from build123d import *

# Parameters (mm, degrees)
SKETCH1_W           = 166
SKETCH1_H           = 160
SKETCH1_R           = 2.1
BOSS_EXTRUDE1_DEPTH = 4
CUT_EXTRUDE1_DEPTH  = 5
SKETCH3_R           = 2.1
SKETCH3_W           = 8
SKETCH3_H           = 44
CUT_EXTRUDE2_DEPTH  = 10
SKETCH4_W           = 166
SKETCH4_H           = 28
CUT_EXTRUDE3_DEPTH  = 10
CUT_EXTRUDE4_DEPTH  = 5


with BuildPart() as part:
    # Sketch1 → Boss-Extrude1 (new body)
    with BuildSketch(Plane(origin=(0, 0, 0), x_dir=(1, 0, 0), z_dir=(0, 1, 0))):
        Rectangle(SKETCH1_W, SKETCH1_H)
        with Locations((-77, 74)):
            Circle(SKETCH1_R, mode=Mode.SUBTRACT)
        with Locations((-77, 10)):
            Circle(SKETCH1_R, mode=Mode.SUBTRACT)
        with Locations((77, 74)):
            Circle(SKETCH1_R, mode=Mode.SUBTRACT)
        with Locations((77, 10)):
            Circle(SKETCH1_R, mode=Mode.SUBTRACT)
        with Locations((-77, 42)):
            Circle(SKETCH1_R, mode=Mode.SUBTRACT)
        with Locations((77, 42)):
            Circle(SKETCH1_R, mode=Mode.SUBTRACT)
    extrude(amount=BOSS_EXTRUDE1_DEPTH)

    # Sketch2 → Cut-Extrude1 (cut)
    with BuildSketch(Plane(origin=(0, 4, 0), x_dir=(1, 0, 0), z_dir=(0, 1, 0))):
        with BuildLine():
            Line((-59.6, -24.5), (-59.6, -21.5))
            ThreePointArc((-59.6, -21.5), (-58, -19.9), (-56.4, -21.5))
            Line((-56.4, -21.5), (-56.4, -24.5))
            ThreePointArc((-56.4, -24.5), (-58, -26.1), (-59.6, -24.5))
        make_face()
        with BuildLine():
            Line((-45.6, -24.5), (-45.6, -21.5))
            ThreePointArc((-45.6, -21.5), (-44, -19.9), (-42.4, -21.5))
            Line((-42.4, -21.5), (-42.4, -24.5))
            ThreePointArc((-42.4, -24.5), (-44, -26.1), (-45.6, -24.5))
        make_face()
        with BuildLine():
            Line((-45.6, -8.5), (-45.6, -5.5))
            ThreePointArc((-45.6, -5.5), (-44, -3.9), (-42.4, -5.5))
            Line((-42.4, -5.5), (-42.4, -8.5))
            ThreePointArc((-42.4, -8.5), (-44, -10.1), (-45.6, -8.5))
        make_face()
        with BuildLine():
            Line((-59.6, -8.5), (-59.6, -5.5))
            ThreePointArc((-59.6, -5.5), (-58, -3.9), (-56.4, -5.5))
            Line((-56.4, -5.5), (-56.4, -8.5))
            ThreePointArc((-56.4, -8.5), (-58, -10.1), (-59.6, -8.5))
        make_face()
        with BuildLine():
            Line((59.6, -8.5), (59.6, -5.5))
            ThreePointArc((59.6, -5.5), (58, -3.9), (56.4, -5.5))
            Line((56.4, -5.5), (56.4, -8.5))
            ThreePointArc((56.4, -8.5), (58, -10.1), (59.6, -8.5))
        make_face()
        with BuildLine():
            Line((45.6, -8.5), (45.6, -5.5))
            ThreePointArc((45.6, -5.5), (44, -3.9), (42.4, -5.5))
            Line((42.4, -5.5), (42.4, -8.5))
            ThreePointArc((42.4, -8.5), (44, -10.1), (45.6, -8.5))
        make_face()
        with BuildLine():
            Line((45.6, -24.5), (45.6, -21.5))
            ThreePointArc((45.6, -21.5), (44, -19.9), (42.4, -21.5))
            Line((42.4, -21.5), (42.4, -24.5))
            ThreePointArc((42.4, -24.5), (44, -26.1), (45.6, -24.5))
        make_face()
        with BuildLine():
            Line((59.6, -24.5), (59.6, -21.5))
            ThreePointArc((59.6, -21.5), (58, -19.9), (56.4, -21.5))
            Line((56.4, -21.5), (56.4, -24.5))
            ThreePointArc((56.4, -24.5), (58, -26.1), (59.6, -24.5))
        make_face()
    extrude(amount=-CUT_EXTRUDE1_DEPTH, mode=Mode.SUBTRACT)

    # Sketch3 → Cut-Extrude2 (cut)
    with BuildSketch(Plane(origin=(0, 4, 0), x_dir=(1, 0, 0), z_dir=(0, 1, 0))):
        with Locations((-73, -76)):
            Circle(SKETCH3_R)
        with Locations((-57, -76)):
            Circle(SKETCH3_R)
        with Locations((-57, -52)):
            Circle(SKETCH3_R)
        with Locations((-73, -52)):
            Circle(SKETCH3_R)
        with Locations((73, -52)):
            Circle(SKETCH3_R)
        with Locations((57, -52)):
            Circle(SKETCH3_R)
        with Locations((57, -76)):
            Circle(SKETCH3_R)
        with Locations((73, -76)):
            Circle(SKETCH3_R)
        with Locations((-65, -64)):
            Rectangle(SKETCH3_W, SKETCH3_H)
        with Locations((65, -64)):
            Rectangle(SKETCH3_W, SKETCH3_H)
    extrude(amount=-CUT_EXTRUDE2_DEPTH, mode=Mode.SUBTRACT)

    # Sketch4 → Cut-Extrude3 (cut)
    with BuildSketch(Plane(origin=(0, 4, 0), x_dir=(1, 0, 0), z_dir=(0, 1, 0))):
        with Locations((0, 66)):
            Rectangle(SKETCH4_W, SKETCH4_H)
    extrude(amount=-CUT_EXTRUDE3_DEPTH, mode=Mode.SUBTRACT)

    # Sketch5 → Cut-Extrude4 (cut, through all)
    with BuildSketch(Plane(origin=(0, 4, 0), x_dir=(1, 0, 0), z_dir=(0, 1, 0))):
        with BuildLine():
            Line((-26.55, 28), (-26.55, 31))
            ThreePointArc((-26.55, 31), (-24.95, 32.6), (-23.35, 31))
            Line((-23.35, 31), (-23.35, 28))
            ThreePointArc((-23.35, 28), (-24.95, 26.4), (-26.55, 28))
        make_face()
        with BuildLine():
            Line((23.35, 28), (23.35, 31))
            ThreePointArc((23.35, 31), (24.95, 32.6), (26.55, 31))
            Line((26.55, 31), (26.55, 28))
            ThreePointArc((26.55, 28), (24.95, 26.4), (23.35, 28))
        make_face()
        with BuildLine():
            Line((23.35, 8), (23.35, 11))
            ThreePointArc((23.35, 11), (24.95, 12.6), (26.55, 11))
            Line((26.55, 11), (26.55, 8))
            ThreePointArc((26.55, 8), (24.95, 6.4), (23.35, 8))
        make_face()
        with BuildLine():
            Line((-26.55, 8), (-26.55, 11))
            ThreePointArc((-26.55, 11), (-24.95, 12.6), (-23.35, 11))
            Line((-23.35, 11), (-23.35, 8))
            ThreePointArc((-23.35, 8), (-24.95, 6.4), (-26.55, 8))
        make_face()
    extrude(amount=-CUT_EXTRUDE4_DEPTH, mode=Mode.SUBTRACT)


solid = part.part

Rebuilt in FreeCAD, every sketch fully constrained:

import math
import FreeCAD as App
import Part
import Sketcher

V = App.Vector

doc = App.newDocument("Part")
body = doc.addObject("PartDesign::Body", "Body")

# Sketch on XZ plane
sketch1 = body.newObject("Sketcher::SketchObject", "Sketch")
sketch1.AttachmentSupport = (doc.getObject("XZ_Plane"), [""])
sketch1.MapMode = "FlatFace"
sketch1.addGeometry([
    Part.LineSegment(V(-83, -80, 0), V(-83, 80, 0)),  # 0
    Part.LineSegment(V(-83, 80, 0), V(83, 80, 0)),  # 1
    Part.LineSegment(V(83, 80, 0), V(83, -80, 0)),  # 2
    Part.LineSegment(V(83, -80, 0), V(-83, -80, 0)),  # 3
    Part.Circle(V(-77, -10, 0), V(0, 0, 1), 2.1),  # 4
    Part.Circle(V(77, -10, 0), V(0, 0, 1), 2.1),  # 5
    Part.Circle(V(-77, -42, 0), V(0, 0, 1), 2.1),  # 6
    Part.Circle(V(-77, -74, 0), V(0, 0, 1), 2.1),  # 7
    Part.Circle(V(77, -42, 0), V(0, 0, 1), 2.1),  # 8
    Part.Circle(V(77, -74, 0), V(0, 0, 1), 2.1),  # 9
], False)
sketch1.addConstraint([
    Sketcher.Constraint("Coincident", 0, 2, 1, 1),
    Sketcher.Constraint("Coincident", 1, 2, 2, 1),
    Sketcher.Constraint("Coincident", 2, 2, 3, 1),
    Sketcher.Constraint("Coincident", 3, 2, 0, 1),
    Sketcher.Constraint("Vertical", 0),
    Sketcher.Constraint("Horizontal", 1),
    Sketcher.Constraint("Vertical", 2),
    Sketcher.Constraint("Horizontal", 3),
    Sketcher.Constraint("Equal", 4, 5),
    Sketcher.Constraint("Equal", 5, 6),
    Sketcher.Constraint("Equal", 6, 7),
    Sketcher.Constraint("Equal", 7, 8),
    Sketcher.Constraint("Equal", 8, 9),
    Sketcher.Constraint("Symmetric", 0, 2, 2, 2, -1, 1),
    Sketcher.Constraint("Symmetric", 4, 3, 5, 3, -2),
    Sketcher.Constraint("Symmetric", 6, 3, 8, 3, -2),
    Sketcher.Constraint("Symmetric", 7, 3, 9, 3, -2),
    Sketcher.Constraint("Vertical", 4, 3, 6, 3),
    Sketcher.Constraint("Vertical", 6, 3, 7, 3),
    Sketcher.Constraint("Diameter", 4, 4.2),
    Sketcher.Constraint("DistanceX", 1, 1, 1, 2, 166.0),
    Sketcher.Constraint("DistanceY", 0, 1, 0, 2, 160.0),
    Sketcher.Constraint("DistanceX", 4, 3, -1, 1, 77.0),
    Sketcher.Constraint("DistanceY", 4, 3, -1, 1, 10.0),
    Sketcher.Constraint("DistanceY", 6, 3, -1, 1, 42.0),
    Sketcher.Constraint("DistanceY", 7, 3, -1, 1, 74.0),
])
pad1 = body.newObject("PartDesign::Pad", "Pad")
pad1.Profile = sketch1
pad1.Length = 4
pad1.Reversed = True

# Sketch on XZ plane
sketch2 = body.newObject("Sketcher::SketchObject", "Sketch001")
sketch2.AttachmentSupport = (doc.getObject("XZ_Plane"), [""])
sketch2.MapMode = "FlatFace"
sketch2.AttachmentOffset = App.Placement(V(0, 0, -4), App.Rotation())
sketch2.addGeometry([
    Part.LineSegment(V(-59.6, 21.5, 0), V(-59.6, 24.5, 0)),  # 0
    Part.ArcOfCircle(Part.Circle(V(-58, 24.5, 0), V(0, 0, 1), 1.6), math.radians(0), math.radians(180)),  # 1
    Part.LineSegment(V(-56.4, 24.5, 0), V(-56.4, 21.5, 0)),  # 2
    Part.ArcOfCircle(Part.Circle(V(-58, 21.5, 0), V(0, 0, 1), 1.6), math.radians(180), math.radians(360)),  # 3
    Part.LineSegment(V(-45.6, 21.5, 0), V(-45.6, 24.5, 0)),  # 4
    Part.ArcOfCircle(Part.Circle(V(-44, 24.5, 0), V(0, 0, 1), 1.6), math.radians(0), math.radians(180)),  # 5
    Part.LineSegment(V(-42.4, 24.5, 0), V(-42.4, 21.5, 0)),  # 6
    Part.ArcOfCircle(Part.Circle(V(-44, 21.5, 0), V(0, 0, 1), 1.6), math.radians(180), math.radians(360)),  # 7
    Part.LineSegment(V(-45.6, 5.5, 0), V(-45.6, 8.5, 0)),  # 8
    Part.ArcOfCircle(Part.Circle(V(-44, 8.5, 0), V(0, 0, 1), 1.6), math.radians(0), math.radians(180)),  # 9
    Part.LineSegment(V(-42.4, 8.5, 0), V(-42.4, 5.5, 0)),  # 10
    Part.ArcOfCircle(Part.Circle(V(-44, 5.5, 0), V(0, 0, 1), 1.6), math.radians(180), math.radians(360)),  # 11
    Part.LineSegment(V(-59.6, 5.5, 0), V(-59.6, 8.5, 0)),  # 12
    Part.ArcOfCircle(Part.Circle(V(-58, 8.5, 0), V(0, 0, 1), 1.6), math.radians(0), math.radians(180)),  # 13
    Part.LineSegment(V(-56.4, 8.5, 0), V(-56.4, 5.5, 0)),  # 14
    Part.ArcOfCircle(Part.Circle(V(-58, 5.5, 0), V(0, 0, 1), 1.6), math.radians(180), math.radians(360)),  # 15
    Part.LineSegment(V(59.6, 8.5, 0), V(59.6, 5.5, 0)),  # 16
    Part.ArcOfCircle(Part.Circle(V(58, 5.5, 0), V(0, 0, 1), 1.6), math.radians(180), math.radians(360)),  # 17
    Part.LineSegment(V(56.4, 5.5, 0), V(56.4, 8.5, 0)),  # 18
    Part.ArcOfCircle(Part.Circle(V(58, 8.5, 0), V(0, 0, 1), 1.6), math.radians(0), math.radians(180)),  # 19
    Part.LineSegment(V(45.6, 8.5, 0), V(45.6, 5.5, 0)),  # 20
    Part.ArcOfCircle(Part.Circle(V(44, 5.5, 0), V(0, 0, 1), 1.6), math.radians(180), math.radians(360)),  # 21
    Part.LineSegment(V(42.4, 5.5, 0), V(42.4, 8.5, 0)),  # 22
    Part.ArcOfCircle(Part.Circle(V(44, 8.5, 0), V(0, 0, 1), 1.6), math.radians(0), math.radians(180)),  # 23
    Part.LineSegment(V(45.6, 24.5, 0), V(45.6, 21.5, 0)),  # 24
    Part.ArcOfCircle(Part.Circle(V(44, 21.5, 0), V(0, 0, 1), 1.6), math.radians(180), math.radians(360)),  # 25
    Part.LineSegment(V(42.4, 21.5, 0), V(42.4, 24.5, 0)),  # 26
    Part.ArcOfCircle(Part.Circle(V(44, 24.5, 0), V(0, 0, 1), 1.6), math.radians(0), math.radians(180)),  # 27
    Part.LineSegment(V(59.6, 24.5, 0), V(59.6, 21.5, 0)),  # 28
    Part.ArcOfCircle(Part.Circle(V(58, 21.5, 0), V(0, 0, 1), 1.6), math.radians(180), math.radians(360)),  # 29
    Part.LineSegment(V(56.4, 21.5, 0), V(56.4, 24.5, 0)),  # 30
    Part.ArcOfCircle(Part.Circle(V(58, 24.5, 0), V(0, 0, 1), 1.6), math.radians(0), math.radians(180)),  # 31
], False)
sketch2.addConstraint([
    Sketcher.Constraint("Tangent", 0, 2, 1, 2),
    Sketcher.Constraint("Tangent", 1, 1, 2, 1),
    Sketcher.Constraint("Tangent", 2, 2, 3, 2),
    Sketcher.Constraint("Tangent", 3, 1, 0, 1),
    Sketcher.Constraint("Tangent", 4, 2, 5, 2),
    Sketcher.Constraint("Tangent", 5, 1, 6, 1),
    Sketcher.Constraint("Tangent", 6, 2, 7, 2),
    Sketcher.Constraint("Tangent", 7, 1, 4, 1),
    Sketcher.Constraint("Tangent", 8, 2, 9, 2),
    Sketcher.Constraint("Tangent", 9, 1, 10, 1),
    Sketcher.Constraint("Tangent", 10, 2, 11, 2),
    Sketcher.Constraint("Tangent", 11, 1, 8, 1),
    Sketcher.Constraint("Tangent", 12, 2, 13, 2),
    Sketcher.Constraint("Tangent", 13, 1, 14, 1),
    Sketcher.Constraint("Tangent", 14, 2, 15, 2),
    Sketcher.Constraint("Tangent", 15, 1, 12, 1),
    Sketcher.Constraint("Tangent", 16, 2, 17, 2),
    Sketcher.Constraint("Tangent", 17, 1, 18, 1),
    Sketcher.Constraint("Tangent", 18, 2, 19, 2),
    Sketcher.Constraint("Tangent", 19, 1, 16, 1),
    Sketcher.Constraint("Tangent", 20, 2, 21, 2),
    Sketcher.Constraint("Tangent", 21, 1, 22, 1),
    Sketcher.Constraint("Tangent", 22, 2, 23, 2),
    Sketcher.Constraint("Tangent", 23, 1, 20, 1),
    Sketcher.Constraint("Tangent", 24, 2, 25, 2),
    Sketcher.Constraint("Tangent", 25, 1, 26, 1),
    Sketcher.Constraint("Tangent", 26, 2, 27, 2),
    Sketcher.Constraint("Tangent", 27, 1, 24, 1),
    Sketcher.Constraint("Tangent", 28, 2, 29, 2),
    Sketcher.Constraint("Tangent", 29, 1, 30, 1),
    Sketcher.Constraint("Tangent", 30, 2, 31, 2),
    Sketcher.Constraint("Tangent", 31, 1, 28, 1),
    Sketcher.Constraint("Vertical", 0),
    Sketcher.Constraint("Vertical", 2),
    Sketcher.Constraint("Vertical", 4),
    Sketcher.Constraint("Vertical", 6),
    Sketcher.Constraint("Vertical", 8),
    Sketcher.Constraint("Vertical", 10),
    Sketcher.Constraint("Vertical", 12),
    Sketcher.Constraint("Vertical", 14),
    Sketcher.Constraint("Vertical", 16),
    Sketcher.Constraint("Vertical", 18),
    Sketcher.Constraint("Vertical", 20),
    Sketcher.Constraint("Vertical", 22),
    Sketcher.Constraint("Vertical", 24),
    Sketcher.Constraint("Vertical", 26),
    Sketcher.Constraint("Vertical", 28),
    Sketcher.Constraint("Vertical", 30),
    Sketcher.Constraint("Equal", 3, 5),
    Sketcher.Constraint("Equal", 7, 9),
    Sketcher.Constraint("Equal", 11, 13),
    Sketcher.Constraint("Equal", 15, 17),
    Sketcher.Constraint("Equal", 19, 21),
    Sketcher.Constraint("Equal", 23, 25),
    Sketcher.Constraint("Equal", 27, 29),
    Sketcher.Constraint("Symmetric", 15, 3, 17, 3, -2),
    Sketcher.Constraint("Symmetric", 11, 3, 21, 3, -2),
    Sketcher.Constraint("Symmetric", 7, 3, 25, 3, -2),
    Sketcher.Constraint("Symmetric", 3, 3, 29, 3, -2),
    Sketcher.Constraint("Horizontal", 1, 3, 5, 3),
    Sketcher.Constraint("Horizontal", 3, 3, 7, 3),
    Sketcher.Constraint("Horizontal", 9, 3, 13, 3),
    Sketcher.Constraint("Horizontal", 11, 3, 15, 3),
    Sketcher.Constraint("Horizontal", 13, 3, 19, 3),
    Sketcher.Constraint("Horizontal", 19, 3, 23, 3),
    Sketcher.Constraint("Horizontal", 5, 3, 27, 3),
    Sketcher.Constraint("Horizontal", 27, 3, 31, 3),
    Sketcher.Constraint("Vertical", 7, 3, 9, 3),
    Sketcher.Constraint("Vertical", 3, 3, 13, 3),
    Sketcher.Constraint("Equal", 6, 8),
    Sketcher.Constraint("Radius", 1, 1.6),
    Sketcher.Constraint("DistanceY", 0, 1, 0, 2, 3.0),
    Sketcher.Constraint("DistanceX", 1, 3, -1, 1, 58.0),
    Sketcher.Constraint("DistanceX", 5, 3, -1, 1, 44.0),
    Sketcher.Constraint("DistanceY", 9, 3, 7, 3, 13.0),
    Sketcher.Constraint("DistanceY", -1, 1, 1, 3, 24.5),
])
pocket1 = body.newObject("PartDesign::Pocket", "Pocket")
pocket1.Profile = sketch2
pocket1.Length = 5
pocket1.Reversed = True

# Sketch on XZ plane
sketch3 = body.newObject("Sketcher::SketchObject", "Sketch002")
sketch3.AttachmentSupport = (doc.getObject("XZ_Plane"), [""])
sketch3.MapMode = "FlatFace"
sketch3.AttachmentOffset = App.Placement(V(0, 0, -4), App.Rotation())
sketch3.addGeometry([
    Part.Circle(V(-73, 76, 0), V(0, 0, 1), 2.1),  # 0
    Part.Circle(V(-57, 76, 0), V(0, 0, 1), 2.1),  # 1
    Part.Circle(V(-57, 52, 0), V(0, 0, 1), 2.1),  # 2
    Part.Circle(V(-73, 52, 0), V(0, 0, 1), 2.1),  # 3
    Part.Circle(V(73, 52, 0), V(0, 0, 1), 2.1),  # 4
    Part.Circle(V(57, 52, 0), V(0, 0, 1), 2.1),  # 5
    Part.Circle(V(57, 76, 0), V(0, 0, 1), 2.1),  # 6
    Part.Circle(V(73, 76, 0), V(0, 0, 1), 2.1),  # 7
    Part.LineSegment(V(-69, 42, 0), V(-69, 86, 0)),  # 8
    Part.LineSegment(V(-69, 86, 0), V(-61, 86, 0)),  # 9
    Part.LineSegment(V(-61, 86, 0), V(-61, 42, 0)),  # 10
    Part.LineSegment(V(-61, 42, 0), V(-69, 42, 0)),  # 11
    Part.LineSegment(V(61, 42, 0), V(61, 86, 0)),  # 12
    Part.LineSegment(V(61, 86, 0), V(69, 86, 0)),  # 13
    Part.LineSegment(V(69, 86, 0), V(69, 42, 0)),  # 14
    Part.LineSegment(V(69, 42, 0), V(61, 42, 0)),  # 15
], False)
sketch3.addConstraint([
    Sketcher.Constraint("Coincident", 8, 2, 9, 1),
    Sketcher.Constraint("Coincident", 9, 2, 10, 1),
    Sketcher.Constraint("Coincident", 10, 2, 11, 1),
    Sketcher.Constraint("Coincident", 11, 2, 8, 1),
    Sketcher.Constraint("Coincident", 12, 2, 13, 1),
    Sketcher.Constraint("Coincident", 13, 2, 14, 1),
    Sketcher.Constraint("Coincident", 14, 2, 15, 1),
    Sketcher.Constraint("Coincident", 15, 2, 12, 1),
    Sketcher.Constraint("Vertical", 8),
    Sketcher.Constraint("Horizontal", 9),
    Sketcher.Constraint("Vertical", 10),
    Sketcher.Constraint("Horizontal", 11),
    Sketcher.Constraint("Vertical", 12),
    Sketcher.Constraint("Horizontal", 13),
    Sketcher.Constraint("Vertical", 14),
    Sketcher.Constraint("Horizontal", 15),
    Sketcher.Constraint("Equal", 0, 1),
    Sketcher.Constraint("Equal", 1, 2),
    Sketcher.Constraint("Equal", 2, 3),
    Sketcher.Constraint("Equal", 3, 4),
    Sketcher.Constraint("Equal", 4, 5),
    Sketcher.Constraint("Equal", 5, 6),
    Sketcher.Constraint("Equal", 6, 7),
    Sketcher.Constraint("Symmetric", 3, 3, 4, 3, -2),
    Sketcher.Constraint("Symmetric", 2, 3, 5, 3, -2),
    Sketcher.Constraint("Symmetric", 1, 3, 6, 3, -2),
    Sketcher.Constraint("Symmetric", 0, 3, 7, 3, -2),
    Sketcher.Constraint("Symmetric", 9, 2, 12, 2, -2),
    Sketcher.Constraint("Symmetric", 11, 2, 14, 2, -2),
    Sketcher.Constraint("Horizontal", 0, 3, 1, 3),
    Sketcher.Constraint("Horizontal", 2, 3, 3, 3),
    Sketcher.Constraint("Vertical", 1, 3, 2, 3),
    Sketcher.Constraint("Vertical", 0, 3, 3, 3),
    Sketcher.Constraint("Diameter", 0, 4.2),
    Sketcher.Constraint("DistanceX", 9, 1, 9, 2, 8.0),
    Sketcher.Constraint("DistanceY", 8, 1, 8, 2, 44.0),
    Sketcher.Constraint("DistanceX", 0, 3, -1, 1, 73.0),
    Sketcher.Constraint("DistanceY", -1, 1, 0, 3, 76.0),
    Sketcher.Constraint("DistanceX", 1, 3, -1, 1, 57.0),
    Sketcher.Constraint("DistanceY", -1, 1, 2, 3, 52.0),
    Sketcher.Constraint("DistanceX", 8, 2, -1, 1, 69.0),
    Sketcher.Constraint("DistanceY", -1, 1, 8, 2, 86.0),
])
pocket2 = body.newObject("PartDesign::Pocket", "Pocket001")
pocket2.Profile = sketch3
pocket2.Length = 10
pocket2.Reversed = True

# Sketch on XZ plane
sketch4 = body.newObject("Sketcher::SketchObject", "Sketch003")
sketch4.AttachmentSupport = (doc.getObject("XZ_Plane"), [""])
sketch4.MapMode = "FlatFace"
sketch4.AttachmentOffset = App.Placement(V(0, 0, -4), App.Rotation())
sketch4.addGeometry([
    Part.LineSegment(V(-83, -80, 0), V(-83, -52, 0)),
    Part.LineSegment(V(-83, -52, 0), V(83, -52, 0)),
    Part.LineSegment(V(83, -52, 0), V(83, -80, 0)),
    Part.LineSegment(V(83, -80, 0), V(-83, -80, 0)),
], False)
sketch4.addConstraint([
    Sketcher.Constraint("Coincident", 0, 2, 1, 1),
    Sketcher.Constraint("Coincident", 1, 2, 2, 1),
    Sketcher.Constraint("Coincident", 2, 2, 3, 1),
    Sketcher.Constraint("Coincident", 3, 2, 0, 1),
    Sketcher.Constraint("Vertical", 0),
    Sketcher.Constraint("Horizontal", 1),
    Sketcher.Constraint("Vertical", 2),
    Sketcher.Constraint("Horizontal", 3),
    Sketcher.Constraint("DistanceX", 1, 1, 1, 2, 166.0),
    Sketcher.Constraint("DistanceY", 0, 1, 0, 2, 28.0),
    Sketcher.Constraint("DistanceX", 0, 2, -1, 1, 83.0),
    Sketcher.Constraint("DistanceY", 0, 2, -1, 1, 52.0),
])
pocket3 = body.newObject("PartDesign::Pocket", "Pocket002")
pocket3.Profile = sketch4
pocket3.Length = 10
pocket3.Reversed = True

# Sketch on XZ plane
sketch5 = body.newObject("Sketcher::SketchObject", "Sketch004")
sketch5.AttachmentSupport = (doc.getObject("XZ_Plane"), [""])
sketch5.MapMode = "FlatFace"
sketch5.AttachmentOffset = App.Placement(V(0, 0, -4), App.Rotation())
sketch5.addGeometry([
    Part.LineSegment(V(-26.6, -31, 0), V(-26.6, -28, 0)),  # 0
    Part.ArcOfCircle(Part.Circle(V(-24.9, -28, 0), V(0, 0, 1), 1.6), math.radians(0), math.radians(180)),  # 1
    Part.LineSegment(V(-23.4, -28, 0), V(-23.4, -31, 0)),  # 2
    Part.ArcOfCircle(Part.Circle(V(-24.9, -31, 0), V(0, 0, 1), 1.6), math.radians(180), math.radians(360)),  # 3
    Part.LineSegment(V(23.4, -31, 0), V(23.4, -28, 0)),  # 4
    Part.ArcOfCircle(Part.Circle(V(24.9, -28, 0), V(0, 0, 1), 1.6), math.radians(0), math.radians(180)),  # 5
    Part.LineSegment(V(26.6, -28, 0), V(26.6, -31, 0)),  # 6
    Part.ArcOfCircle(Part.Circle(V(24.9, -31, 0), V(0, 0, 1), 1.6), math.radians(180), math.radians(360)),  # 7
    Part.LineSegment(V(23.4, -11, 0), V(23.4, -8, 0)),  # 8
    Part.ArcOfCircle(Part.Circle(V(24.9, -8, 0), V(0, 0, 1), 1.6), math.radians(0), math.radians(180)),  # 9
    Part.LineSegment(V(26.6, -8, 0), V(26.6, -11, 0)),  # 10
    Part.ArcOfCircle(Part.Circle(V(24.9, -11, 0), V(0, 0, 1), 1.6), math.radians(180), math.radians(360)),  # 11
    Part.LineSegment(V(-26.6, -11, 0), V(-26.6, -8, 0)),  # 12
    Part.ArcOfCircle(Part.Circle(V(-24.9, -8, 0), V(0, 0, 1), 1.6), math.radians(0), math.radians(180)),  # 13
    Part.LineSegment(V(-23.4, -8, 0), V(-23.4, -11, 0)),  # 14
    Part.ArcOfCircle(Part.Circle(V(-24.9, -11, 0), V(0, 0, 1), 1.6), math.radians(180), math.radians(360)),  # 15
], False)
sketch5.addConstraint([
    Sketcher.Constraint("Tangent", 0, 2, 1, 2),
    Sketcher.Constraint("Tangent", 1, 1, 2, 1),
    Sketcher.Constraint("Tangent", 2, 2, 3, 2),
    Sketcher.Constraint("Tangent", 3, 1, 0, 1),
    Sketcher.Constraint("Tangent", 4, 2, 5, 2),
    Sketcher.Constraint("Tangent", 5, 1, 6, 1),
    Sketcher.Constraint("Tangent", 6, 2, 7, 2),
    Sketcher.Constraint("Tangent", 7, 1, 4, 1),
    Sketcher.Constraint("Tangent", 8, 2, 9, 2),
    Sketcher.Constraint("Tangent", 9, 1, 10, 1),
    Sketcher.Constraint("Tangent", 10, 2, 11, 2),
    Sketcher.Constraint("Tangent", 11, 1, 8, 1),
    Sketcher.Constraint("Tangent", 12, 2, 13, 2),
    Sketcher.Constraint("Tangent", 13, 1, 14, 1),
    Sketcher.Constraint("Tangent", 14, 2, 15, 2),
    Sketcher.Constraint("Tangent", 15, 1, 12, 1),
    Sketcher.Constraint("Vertical", 0),
    Sketcher.Constraint("Vertical", 2),
    Sketcher.Constraint("Vertical", 4),
    Sketcher.Constraint("Vertical", 6),
    Sketcher.Constraint("Vertical", 8),
    Sketcher.Constraint("Vertical", 10),
    Sketcher.Constraint("Vertical", 12),
    Sketcher.Constraint("Vertical", 14),
    Sketcher.Constraint("Equal", 3, 5),
    Sketcher.Constraint("Equal", 7, 9),
    Sketcher.Constraint("Equal", 11, 13),
    Sketcher.Constraint("Symmetric", 1, 3, 5, 3, -2),
    Sketcher.Constraint("Symmetric", 9, 3, 13, 3, -2),
    Sketcher.Constraint("Horizontal", 3, 3, 7, 3),
    Sketcher.Constraint("Horizontal", 11, 3, 15, 3),
    Sketcher.Constraint("Vertical", 7, 3, 9, 3),
    Sketcher.Constraint("Equal", 6, 8),
    Sketcher.Constraint("Radius", 1, 1.6),
    Sketcher.Constraint("DistanceY", 0, 1, 0, 2, 3.0),
    Sketcher.Constraint("DistanceY", 1, 3, -1, 1, 28.0),
    Sketcher.Constraint("DistanceY", 9, 3, -1, 1, 8.0),
    Sketcher.Constraint("DistanceX", 1, 3, 5, 3, 49.9),
])
pocket4 = body.newObject("PartDesign::Pocket", "Pocket003")
pocket4.Profile = sketch5
pocket4.Type = "ThroughAll"
pocket4.Reversed = True

doc.recompute()
